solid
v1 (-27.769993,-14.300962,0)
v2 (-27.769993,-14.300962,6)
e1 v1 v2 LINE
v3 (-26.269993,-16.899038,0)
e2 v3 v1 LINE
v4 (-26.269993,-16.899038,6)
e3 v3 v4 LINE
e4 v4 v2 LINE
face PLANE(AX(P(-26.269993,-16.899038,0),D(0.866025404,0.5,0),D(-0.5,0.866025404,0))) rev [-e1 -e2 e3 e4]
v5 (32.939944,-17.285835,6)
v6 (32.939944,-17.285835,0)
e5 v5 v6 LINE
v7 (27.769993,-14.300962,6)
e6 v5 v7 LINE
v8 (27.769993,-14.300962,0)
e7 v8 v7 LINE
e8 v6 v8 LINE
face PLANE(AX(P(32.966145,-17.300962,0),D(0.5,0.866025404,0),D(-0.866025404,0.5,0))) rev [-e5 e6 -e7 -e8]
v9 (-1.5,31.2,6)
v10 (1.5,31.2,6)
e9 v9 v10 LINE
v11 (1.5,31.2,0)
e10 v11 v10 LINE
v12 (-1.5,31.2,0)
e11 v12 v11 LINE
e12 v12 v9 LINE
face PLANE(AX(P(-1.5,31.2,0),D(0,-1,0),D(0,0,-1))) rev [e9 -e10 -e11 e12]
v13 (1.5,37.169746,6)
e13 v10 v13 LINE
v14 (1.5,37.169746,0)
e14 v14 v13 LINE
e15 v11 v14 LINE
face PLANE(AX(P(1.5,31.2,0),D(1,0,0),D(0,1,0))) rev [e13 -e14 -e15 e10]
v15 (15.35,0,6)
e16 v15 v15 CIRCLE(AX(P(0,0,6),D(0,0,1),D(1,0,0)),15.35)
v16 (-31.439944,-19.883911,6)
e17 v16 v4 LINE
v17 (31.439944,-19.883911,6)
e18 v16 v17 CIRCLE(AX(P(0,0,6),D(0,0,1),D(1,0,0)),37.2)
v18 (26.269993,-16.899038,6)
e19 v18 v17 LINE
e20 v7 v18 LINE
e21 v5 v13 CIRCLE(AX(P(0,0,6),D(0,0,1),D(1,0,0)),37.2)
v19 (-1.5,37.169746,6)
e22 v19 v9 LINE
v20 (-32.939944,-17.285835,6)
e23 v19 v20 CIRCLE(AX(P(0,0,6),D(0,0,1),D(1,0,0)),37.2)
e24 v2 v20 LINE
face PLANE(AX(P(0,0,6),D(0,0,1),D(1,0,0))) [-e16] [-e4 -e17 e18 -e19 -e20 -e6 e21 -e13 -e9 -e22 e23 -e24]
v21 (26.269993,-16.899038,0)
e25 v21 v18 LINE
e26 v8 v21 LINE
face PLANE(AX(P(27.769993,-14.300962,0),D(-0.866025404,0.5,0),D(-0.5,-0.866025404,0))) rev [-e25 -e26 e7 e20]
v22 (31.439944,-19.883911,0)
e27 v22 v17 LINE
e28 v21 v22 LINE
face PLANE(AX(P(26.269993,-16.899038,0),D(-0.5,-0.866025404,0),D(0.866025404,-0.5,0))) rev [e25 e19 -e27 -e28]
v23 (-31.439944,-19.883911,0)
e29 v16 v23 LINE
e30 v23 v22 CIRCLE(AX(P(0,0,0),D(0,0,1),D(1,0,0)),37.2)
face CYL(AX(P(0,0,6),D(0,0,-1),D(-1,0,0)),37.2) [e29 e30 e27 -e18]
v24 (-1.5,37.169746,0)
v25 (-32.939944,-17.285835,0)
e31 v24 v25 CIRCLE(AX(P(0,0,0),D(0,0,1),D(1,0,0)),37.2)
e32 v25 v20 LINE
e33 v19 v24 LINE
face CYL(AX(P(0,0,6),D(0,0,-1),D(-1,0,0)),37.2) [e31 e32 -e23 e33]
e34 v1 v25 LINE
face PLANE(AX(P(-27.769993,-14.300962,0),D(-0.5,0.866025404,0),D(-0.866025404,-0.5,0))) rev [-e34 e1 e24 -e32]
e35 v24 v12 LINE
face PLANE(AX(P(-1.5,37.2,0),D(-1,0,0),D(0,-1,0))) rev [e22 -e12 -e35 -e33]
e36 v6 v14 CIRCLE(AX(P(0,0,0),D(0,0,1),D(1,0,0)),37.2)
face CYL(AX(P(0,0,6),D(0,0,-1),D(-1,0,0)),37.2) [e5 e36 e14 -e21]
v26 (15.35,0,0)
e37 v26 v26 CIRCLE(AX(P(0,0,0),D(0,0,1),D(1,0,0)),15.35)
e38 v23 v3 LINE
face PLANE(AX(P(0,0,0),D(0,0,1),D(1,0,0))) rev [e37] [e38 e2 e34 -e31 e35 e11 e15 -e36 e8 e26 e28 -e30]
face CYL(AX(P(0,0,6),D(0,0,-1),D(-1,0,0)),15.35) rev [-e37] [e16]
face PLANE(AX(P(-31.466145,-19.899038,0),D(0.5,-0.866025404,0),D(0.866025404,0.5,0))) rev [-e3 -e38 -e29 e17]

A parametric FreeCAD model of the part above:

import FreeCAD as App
import Part
import Sketcher
from FreeCAD import Vector
Q = App.Units.Quantity

doc = App.newDocument("Part")
params = doc.addObject("Spreadsheet::Sheet", "Params")
for row, (alias, value) in enumerate([
    ("sketch1_diameter", "74.4 mm"),
    ("sketch1_diameter2", "30.7 mm"),
    ("pad1_length", "6 mm"),
    ("sketch2_width", "3 mm"),
    ("sketch2_height", "6 mm"),
    ("sketch2_length", "6 mm"),
    ("sketch2_length2", "3 mm"),
    ("pocket1_length", "6 mm"),
], start=1):
    params.set(f"A{row}", alias)
    params.set(f"B{row}", "=" + value)
    params.setAlias(f"B{row}", alias)

body = doc.addObject("PartDesign::Body", "Body")

sketch1 = doc.addObject("Sketcher::SketchObject", "Sketch")
body.addObject(sketch1)
sketch1.AttachmentSupport = (doc.XY_Plane, [""])
sketch1.MapMode = "FlatFace"
sketch1.addGeometry([
    Part.Circle(Vector(0, 0, 0), Vector(0, 0, 1), 37.2),
    Part.Circle(Vector(0, 0, 0), Vector(0, 0, 1), 15.35),
], False)
sketch1.addConstraint([
    Sketcher.Constraint("Coincident", 0, 3, -1, 1),
    Sketcher.Constraint("Coincident", 1, 3, -1, 1),
    Sketcher.Constraint("Diameter", 0, Q("74.4 mm")),
    Sketcher.Constraint("Diameter", 1, Q("30.7 mm")),
])
sketch1.setExpression("Constraints[2]", "Params.sketch1_diameter")
sketch1.setExpression("Constraints[3]", "Params.sketch1_diameter2")
pad1 = doc.addObject("PartDesign::Pad", "Pad")
body.addObject(pad1)
pad1.Profile = sketch1
pad1.setExpression("Length", "Params.pad1_length")

sketch2 = doc.addObject("Sketcher::SketchObject", "Sketch001")
body.addObject(sketch2)
sketch2.AttachmentSupport = (doc.XY_Plane, [""])
sketch2.MapMode = "FlatFace"
sketch2.AttachmentOffset = App.Placement(Vector(0, 0, 6), App.Rotation())
sketch2.addGeometry([
    Part.LineSegment(Vector(-1.5, 37.2, 0), Vector(-1.5, 31.2, 0)),
    Part.LineSegment(Vector(-1.5, 31.2, 0), Vector(1.5, 31.2, 0)),
    Part.LineSegment(Vector(1.5, 31.2, 0), Vector(1.5, 37.2, 0)),
    Part.LineSegment(Vector(1.5, 37.2, 0), Vector(-1.5, 37.2, 0)),
    Part.LineSegment(Vector(26.269993, -16.899038, 0), Vector(31.466145, -19.899038, 0)),
    Part.LineSegment(Vector(31.466145, -19.899038, 0), Vector(32.966145, -17.300962, 0)),
    Part.LineSegment(Vector(32.966145, -17.300962, 0), Vector(27.769993, -14.300962, 0)),
    Part.LineSegment(Vector(27.769993, -14.300962, 0), Vector(26.269993, -16.899038, 0)),
    Part.LineSegment(Vector(-27.769993, -14.300962, 0), Vector(-32.966145, -17.300962, 0)),
    Part.LineSegment(Vector(-32.966145, -17.300962, 0), Vector(-31.466145, -19.899038, 0)),
    Part.LineSegment(Vector(-31.466145, -19.899038, 0), Vector(-26.269993, -16.899038, 0)),
    Part.LineSegment(Vector(-26.269993, -16.899038, 0), Vector(-27.769993, -14.300962, 0)),
], False)
sketch2.addConstraint([
    Sketcher.Constraint("Coincident", 0, 2, 1, 1),
    Sketcher.Constraint("Coincident", 1, 2, 2, 1),
    Sketcher.Constraint("Coincident", 2, 2, 3, 1),
    Sketcher.Constraint("Coincident", 3, 2, 0, 1),
    Sketcher.Constraint("Coincident", 4, 2, 5, 1),
    Sketcher.Constraint("Coincident", 5, 2, 6, 1),
    Sketcher.Constraint("Coincident", 6, 2, 7, 1),
    Sketcher.Constraint("Coincident", 7, 2, 4, 1),
    Sketcher.Constraint("Coincident", 8, 2, 9, 1),
    Sketcher.Constraint("Coincident", 9, 2, 10, 1),
    Sketcher.Constraint("Coincident", 10, 2, 11, 1),
    Sketcher.Constraint("Coincident", 11, 2, 8, 1),
    Sketcher.Constraint("Vertical", 0),
    Sketcher.Constraint("Horizontal", 1),
    Sketcher.Constraint("Vertical", 2),
    Sketcher.Constraint("Horizontal", 3),
    Sketcher.Constraint("Symmetric", 5, 2, 8, 2, -2),
    Sketcher.Constraint("Symmetric", 4, 2, 9, 2, -2),
    Sketcher.Constraint("Symmetric", 7, 2, 10, 2, -2),
    Sketcher.Constraint("Symmetric", 6, 2, 11, 2, -2),
    Sketcher.Constraint("Perpendicular", 4, 5),
    Sketcher.Constraint("Perpendicular", 5, 6),
    Sketcher.Constraint("Perpendicular", 6, 7),
    Sketcher.Constraint("DistanceX", 1, 1, 1, 2, Q("3 mm")),
    Sketcher.Constraint("DistanceY", 0, 2, 0, 1, Q("6 mm")),
    Sketcher.Constraint("Angle", 4, Q("-30 deg")),
    Sketcher.Constraint("Distance", 4, Q("6 mm")),
    Sketcher.Constraint("Distance", 5, Q("3 mm")),
    Sketcher.Constraint("DistanceX", 0, 2, -1, 1, Q("1.5 mm")),
    Sketcher.Constraint("DistanceY", -1, 1, 0, 2, Q("31.2 mm")),
    Sketcher.Constraint("DistanceY", 4, 2, -1, 1, Q("19.899038 mm")),
    Sketcher.Constraint("DistanceX", -1, 1, 4, 2, Q("31.466145 mm")),
])
sketch2.setExpression("Constraints[23]", "Params.sketch2_width")
sketch2.setExpression("Constraints[24]", "Params.sketch2_height")
sketch2.setExpression("Constraints[26]", "Params.sketch2_length")
sketch2.setExpression("Constraints[27]", "Params.sketch2_length2")
pocket1 = doc.addObject("PartDesign::Pocket", "Pocket")
body.addObject(pocket1)
pocket1.Profile = sketch2
pocket1.setExpression("Length", "Params.pocket1_length")

doc.recompute()
